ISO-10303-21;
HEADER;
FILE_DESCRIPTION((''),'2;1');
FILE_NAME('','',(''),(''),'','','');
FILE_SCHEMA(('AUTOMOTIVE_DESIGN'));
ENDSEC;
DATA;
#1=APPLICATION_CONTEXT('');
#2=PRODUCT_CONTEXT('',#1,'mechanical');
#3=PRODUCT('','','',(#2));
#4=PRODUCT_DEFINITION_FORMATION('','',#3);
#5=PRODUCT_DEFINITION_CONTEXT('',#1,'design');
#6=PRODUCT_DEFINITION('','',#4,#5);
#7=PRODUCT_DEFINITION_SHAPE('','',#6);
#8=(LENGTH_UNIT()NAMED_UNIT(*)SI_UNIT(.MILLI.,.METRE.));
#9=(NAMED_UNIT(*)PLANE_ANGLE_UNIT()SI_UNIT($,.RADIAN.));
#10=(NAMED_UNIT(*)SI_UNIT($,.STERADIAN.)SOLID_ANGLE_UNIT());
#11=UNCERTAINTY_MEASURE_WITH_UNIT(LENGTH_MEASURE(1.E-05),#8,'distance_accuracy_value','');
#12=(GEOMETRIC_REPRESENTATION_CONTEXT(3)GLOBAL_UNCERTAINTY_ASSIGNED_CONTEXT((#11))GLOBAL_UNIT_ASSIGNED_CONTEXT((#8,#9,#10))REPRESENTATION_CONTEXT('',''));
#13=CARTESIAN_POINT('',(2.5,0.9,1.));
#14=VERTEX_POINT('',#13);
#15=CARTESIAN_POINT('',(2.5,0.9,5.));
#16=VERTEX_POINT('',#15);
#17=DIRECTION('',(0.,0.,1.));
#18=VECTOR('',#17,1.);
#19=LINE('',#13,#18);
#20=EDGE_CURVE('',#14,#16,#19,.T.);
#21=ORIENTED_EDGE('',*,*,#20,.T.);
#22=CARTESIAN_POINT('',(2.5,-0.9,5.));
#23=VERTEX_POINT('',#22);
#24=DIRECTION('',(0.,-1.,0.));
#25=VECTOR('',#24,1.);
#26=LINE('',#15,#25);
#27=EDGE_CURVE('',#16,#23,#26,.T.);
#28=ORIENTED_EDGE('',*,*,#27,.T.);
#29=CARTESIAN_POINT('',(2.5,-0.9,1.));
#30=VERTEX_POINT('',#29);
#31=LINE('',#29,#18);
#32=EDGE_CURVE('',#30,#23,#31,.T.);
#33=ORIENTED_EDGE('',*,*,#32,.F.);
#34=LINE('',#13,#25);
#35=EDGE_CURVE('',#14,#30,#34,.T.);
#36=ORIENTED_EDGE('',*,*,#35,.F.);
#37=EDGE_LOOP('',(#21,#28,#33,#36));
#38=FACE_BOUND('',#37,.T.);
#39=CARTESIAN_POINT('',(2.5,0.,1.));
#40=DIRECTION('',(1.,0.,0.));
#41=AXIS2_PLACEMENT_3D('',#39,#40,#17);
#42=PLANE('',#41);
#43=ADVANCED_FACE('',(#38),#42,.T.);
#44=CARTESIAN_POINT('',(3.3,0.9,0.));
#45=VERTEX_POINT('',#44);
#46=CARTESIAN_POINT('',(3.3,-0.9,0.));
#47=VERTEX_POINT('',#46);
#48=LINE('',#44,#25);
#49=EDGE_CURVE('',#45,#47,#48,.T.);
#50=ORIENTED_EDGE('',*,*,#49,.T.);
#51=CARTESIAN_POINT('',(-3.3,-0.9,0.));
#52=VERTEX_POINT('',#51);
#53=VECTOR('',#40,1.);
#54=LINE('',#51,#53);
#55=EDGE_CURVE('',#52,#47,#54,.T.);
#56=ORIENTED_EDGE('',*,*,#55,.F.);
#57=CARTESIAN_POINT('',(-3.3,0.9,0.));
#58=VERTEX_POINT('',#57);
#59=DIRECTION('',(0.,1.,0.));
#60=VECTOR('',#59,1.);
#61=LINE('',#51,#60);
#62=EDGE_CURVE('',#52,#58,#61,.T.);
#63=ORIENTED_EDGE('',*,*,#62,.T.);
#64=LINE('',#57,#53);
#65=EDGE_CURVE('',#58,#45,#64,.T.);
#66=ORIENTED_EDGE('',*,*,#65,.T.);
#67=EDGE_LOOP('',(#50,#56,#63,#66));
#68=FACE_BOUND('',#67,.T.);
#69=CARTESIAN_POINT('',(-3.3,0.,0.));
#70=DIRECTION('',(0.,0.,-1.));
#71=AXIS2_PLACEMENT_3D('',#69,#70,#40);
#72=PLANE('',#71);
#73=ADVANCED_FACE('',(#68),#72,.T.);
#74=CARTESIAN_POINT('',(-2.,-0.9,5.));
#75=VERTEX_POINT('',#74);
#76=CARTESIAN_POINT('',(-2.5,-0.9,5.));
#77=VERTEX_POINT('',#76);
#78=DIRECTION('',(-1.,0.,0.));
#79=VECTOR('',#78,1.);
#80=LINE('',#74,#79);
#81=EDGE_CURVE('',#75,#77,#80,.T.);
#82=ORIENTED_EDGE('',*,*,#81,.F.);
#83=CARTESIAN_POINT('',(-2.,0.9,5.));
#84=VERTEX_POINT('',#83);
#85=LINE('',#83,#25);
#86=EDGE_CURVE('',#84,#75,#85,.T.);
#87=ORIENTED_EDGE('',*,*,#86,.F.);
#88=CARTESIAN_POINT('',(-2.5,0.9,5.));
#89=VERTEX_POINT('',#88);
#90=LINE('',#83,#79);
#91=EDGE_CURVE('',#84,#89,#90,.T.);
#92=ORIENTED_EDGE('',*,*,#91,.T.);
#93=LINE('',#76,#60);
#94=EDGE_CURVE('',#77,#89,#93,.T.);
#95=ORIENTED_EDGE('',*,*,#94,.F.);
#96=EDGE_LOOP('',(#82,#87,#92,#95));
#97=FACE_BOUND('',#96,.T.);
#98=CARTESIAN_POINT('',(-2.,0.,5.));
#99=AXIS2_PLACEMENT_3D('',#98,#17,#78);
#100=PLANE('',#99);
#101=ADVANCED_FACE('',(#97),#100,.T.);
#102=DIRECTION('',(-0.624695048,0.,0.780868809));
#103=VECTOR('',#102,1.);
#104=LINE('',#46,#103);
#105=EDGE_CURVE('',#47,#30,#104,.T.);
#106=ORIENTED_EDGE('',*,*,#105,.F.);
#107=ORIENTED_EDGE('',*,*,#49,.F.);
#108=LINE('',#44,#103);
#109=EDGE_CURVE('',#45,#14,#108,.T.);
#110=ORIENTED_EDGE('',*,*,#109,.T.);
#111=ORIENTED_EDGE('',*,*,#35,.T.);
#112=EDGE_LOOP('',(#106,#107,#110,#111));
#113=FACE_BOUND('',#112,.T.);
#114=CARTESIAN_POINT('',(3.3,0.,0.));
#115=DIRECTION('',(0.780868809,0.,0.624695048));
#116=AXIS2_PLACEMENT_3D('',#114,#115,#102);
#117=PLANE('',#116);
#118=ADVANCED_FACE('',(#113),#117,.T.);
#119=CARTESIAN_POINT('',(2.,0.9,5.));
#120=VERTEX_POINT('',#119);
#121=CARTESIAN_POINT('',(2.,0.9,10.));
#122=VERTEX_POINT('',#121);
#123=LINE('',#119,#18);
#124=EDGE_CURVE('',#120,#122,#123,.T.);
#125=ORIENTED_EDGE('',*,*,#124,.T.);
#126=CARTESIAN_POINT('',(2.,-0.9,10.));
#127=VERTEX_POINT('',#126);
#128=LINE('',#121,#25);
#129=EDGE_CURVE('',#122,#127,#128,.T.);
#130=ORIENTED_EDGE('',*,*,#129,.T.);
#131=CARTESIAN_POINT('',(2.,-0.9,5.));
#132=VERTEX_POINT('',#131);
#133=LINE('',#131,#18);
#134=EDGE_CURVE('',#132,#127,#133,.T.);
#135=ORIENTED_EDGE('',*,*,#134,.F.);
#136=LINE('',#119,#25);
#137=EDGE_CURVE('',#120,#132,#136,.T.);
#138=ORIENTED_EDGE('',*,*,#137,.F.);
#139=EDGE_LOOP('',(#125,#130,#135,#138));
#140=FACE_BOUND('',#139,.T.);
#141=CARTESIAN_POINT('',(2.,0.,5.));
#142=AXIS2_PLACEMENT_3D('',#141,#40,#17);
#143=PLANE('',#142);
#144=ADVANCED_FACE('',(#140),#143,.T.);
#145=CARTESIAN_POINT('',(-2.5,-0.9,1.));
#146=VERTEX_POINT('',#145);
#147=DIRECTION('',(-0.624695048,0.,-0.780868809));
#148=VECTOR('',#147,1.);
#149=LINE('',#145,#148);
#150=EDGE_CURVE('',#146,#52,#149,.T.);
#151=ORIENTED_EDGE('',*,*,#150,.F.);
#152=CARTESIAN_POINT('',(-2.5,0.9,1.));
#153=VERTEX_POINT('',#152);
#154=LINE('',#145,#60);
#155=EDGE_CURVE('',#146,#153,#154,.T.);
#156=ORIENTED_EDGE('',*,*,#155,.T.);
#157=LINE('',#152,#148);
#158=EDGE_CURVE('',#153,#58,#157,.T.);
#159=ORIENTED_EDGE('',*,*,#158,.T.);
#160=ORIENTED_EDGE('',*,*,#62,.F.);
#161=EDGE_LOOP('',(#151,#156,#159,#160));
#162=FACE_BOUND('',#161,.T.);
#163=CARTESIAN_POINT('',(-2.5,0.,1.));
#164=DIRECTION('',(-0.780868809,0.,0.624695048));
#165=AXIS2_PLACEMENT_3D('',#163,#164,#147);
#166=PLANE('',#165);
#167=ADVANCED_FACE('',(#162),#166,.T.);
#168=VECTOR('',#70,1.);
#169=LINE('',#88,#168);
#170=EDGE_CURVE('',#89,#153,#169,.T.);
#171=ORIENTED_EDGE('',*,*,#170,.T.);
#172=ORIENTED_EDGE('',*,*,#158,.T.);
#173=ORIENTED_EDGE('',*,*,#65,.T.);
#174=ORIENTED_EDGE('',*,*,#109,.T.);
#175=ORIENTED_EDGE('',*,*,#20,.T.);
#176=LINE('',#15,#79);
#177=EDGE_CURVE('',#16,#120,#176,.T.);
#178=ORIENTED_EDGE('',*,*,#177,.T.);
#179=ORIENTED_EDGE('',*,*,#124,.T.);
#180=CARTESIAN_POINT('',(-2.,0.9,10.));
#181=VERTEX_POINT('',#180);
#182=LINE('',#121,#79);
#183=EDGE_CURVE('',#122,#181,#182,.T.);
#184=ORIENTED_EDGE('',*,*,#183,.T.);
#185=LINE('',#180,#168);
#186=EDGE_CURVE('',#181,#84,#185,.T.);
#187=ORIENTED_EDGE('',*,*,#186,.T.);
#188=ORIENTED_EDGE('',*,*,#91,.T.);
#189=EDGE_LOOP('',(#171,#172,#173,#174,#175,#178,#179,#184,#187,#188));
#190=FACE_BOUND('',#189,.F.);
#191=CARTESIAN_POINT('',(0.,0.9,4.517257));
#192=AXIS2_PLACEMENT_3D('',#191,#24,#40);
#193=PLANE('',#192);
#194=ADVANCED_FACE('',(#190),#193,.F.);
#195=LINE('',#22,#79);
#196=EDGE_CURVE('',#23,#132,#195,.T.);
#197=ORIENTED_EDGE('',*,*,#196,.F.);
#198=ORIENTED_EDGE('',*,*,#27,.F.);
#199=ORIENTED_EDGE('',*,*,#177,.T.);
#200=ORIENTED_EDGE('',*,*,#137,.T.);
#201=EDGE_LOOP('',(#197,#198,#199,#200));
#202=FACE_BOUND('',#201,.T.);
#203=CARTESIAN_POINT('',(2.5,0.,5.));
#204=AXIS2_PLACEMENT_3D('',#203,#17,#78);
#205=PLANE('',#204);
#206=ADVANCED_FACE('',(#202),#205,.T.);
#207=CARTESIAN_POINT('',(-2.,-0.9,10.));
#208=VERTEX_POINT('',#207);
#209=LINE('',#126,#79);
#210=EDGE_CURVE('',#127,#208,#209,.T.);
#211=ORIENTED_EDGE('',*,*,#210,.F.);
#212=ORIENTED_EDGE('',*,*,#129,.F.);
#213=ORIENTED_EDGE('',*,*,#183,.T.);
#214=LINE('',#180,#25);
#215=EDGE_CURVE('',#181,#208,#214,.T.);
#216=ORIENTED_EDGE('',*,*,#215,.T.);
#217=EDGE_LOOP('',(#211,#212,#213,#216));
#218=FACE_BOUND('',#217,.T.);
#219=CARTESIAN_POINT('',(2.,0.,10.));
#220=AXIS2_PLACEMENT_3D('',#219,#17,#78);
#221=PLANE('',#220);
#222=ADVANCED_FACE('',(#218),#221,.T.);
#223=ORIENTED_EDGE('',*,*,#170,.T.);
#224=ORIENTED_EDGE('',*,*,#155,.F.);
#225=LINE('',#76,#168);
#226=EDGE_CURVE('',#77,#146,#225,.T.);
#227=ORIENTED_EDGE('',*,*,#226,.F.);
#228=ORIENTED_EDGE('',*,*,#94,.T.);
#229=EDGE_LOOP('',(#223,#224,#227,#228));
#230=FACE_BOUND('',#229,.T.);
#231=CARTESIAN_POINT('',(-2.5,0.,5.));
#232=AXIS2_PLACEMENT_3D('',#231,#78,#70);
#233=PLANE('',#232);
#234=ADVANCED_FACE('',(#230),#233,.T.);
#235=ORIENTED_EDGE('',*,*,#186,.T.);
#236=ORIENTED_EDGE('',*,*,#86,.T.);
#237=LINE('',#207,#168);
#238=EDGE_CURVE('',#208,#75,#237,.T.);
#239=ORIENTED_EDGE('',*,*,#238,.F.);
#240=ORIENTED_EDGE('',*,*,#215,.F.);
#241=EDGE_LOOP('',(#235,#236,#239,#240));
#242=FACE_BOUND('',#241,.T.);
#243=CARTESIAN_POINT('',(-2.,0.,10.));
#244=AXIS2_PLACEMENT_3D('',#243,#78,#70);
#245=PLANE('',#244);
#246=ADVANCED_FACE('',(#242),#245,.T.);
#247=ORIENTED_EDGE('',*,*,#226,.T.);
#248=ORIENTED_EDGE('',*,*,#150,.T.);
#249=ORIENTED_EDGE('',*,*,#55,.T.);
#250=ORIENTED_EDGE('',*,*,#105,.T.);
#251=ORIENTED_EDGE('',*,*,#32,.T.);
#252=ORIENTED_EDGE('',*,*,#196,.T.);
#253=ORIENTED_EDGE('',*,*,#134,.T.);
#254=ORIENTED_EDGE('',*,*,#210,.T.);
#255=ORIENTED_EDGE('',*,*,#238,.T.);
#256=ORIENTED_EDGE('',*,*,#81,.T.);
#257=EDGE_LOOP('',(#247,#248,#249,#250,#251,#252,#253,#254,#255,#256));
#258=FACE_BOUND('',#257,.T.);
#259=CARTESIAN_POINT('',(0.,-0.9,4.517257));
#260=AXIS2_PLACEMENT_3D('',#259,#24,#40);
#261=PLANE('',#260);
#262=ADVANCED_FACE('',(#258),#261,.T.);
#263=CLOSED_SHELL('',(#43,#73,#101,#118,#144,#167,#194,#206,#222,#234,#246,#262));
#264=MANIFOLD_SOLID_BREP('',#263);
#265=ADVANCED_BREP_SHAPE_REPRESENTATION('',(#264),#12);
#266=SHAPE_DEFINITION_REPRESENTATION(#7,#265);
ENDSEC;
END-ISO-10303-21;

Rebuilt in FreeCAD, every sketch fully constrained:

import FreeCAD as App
import Part
import Sketcher
Q = App.Units.Quantity

doc = App.newDocument("Part")
params = doc.addObject("Spreadsheet::Sheet", "Params")
for row, (alias, value) in enumerate([
    ("sketch1_width", "4 mm"),
    ("sketch1_height", "5 mm"),
    ("sketch1_width2", "6.6 mm"),
    ("sketch1_width3", "0.5 mm"),
    ("pad1_length", "1.8 mm"),
], start=1):
    params.set(f"A{row}", alias)
    params.set(f"B{row}", "=" + value)
    params.setAlias(f"B{row}", alias)

body = doc.addObject("PartDesign::Body", "Body")

sketch1 = doc.addObject("Sketcher::SketchObject", "Sketch")
body.addObject(sketch1)
sketch1.AttachmentSupport = (doc.XZ_Plane, [""])
sketch1.MapMode = "FlatFace"
sketch1.addGeometry([
    Part.LineSegment(App.Vector(-3.3, 0, 0), App.Vector(3.3, 0, 0)),
    Part.LineSegment(App.Vector(3.3, 0, 0), App.Vector(2.5, 1, 0)),
    Part.LineSegment(App.Vector(2.5, 1, 0), App.Vector(2.5, 5, 0)),
    Part.LineSegment(App.Vector(2.5, 5, 0), App.Vector(2, 5, 0)),
    Part.LineSegment(App.Vector(2, 5, 0), App.Vector(2, 10, 0)),
    Part.LineSegment(App.Vector(2, 10, 0), App.Vector(-2, 10, 0)),
    Part.LineSegment(App.Vector(-2, 10, 0), App.Vector(-2, 5, 0)),
    Part.LineSegment(App.Vector(-2, 5, 0), App.Vector(-2.5, 5, 0)),
    Part.LineSegment(App.Vector(-2.5, 5, 0), App.Vector(-2.5, 1, 0)),
    Part.LineSegment(App.Vector(-2.5, 1, 0), App.Vector(-3.3, 0, 0)),
], False)
sketch1.addConstraint([
    Sketcher.Constraint("Coincident", 0, 2, 1, 1),
    Sketcher.Constraint("Coincident", 1, 2, 2, 1),
    Sketcher.Constraint("Coincident", 2, 2, 3, 1),
    Sketcher.Constraint("Coincident", 3, 2, 4, 1),
    Sketcher.Constraint("Coincident", 4, 2, 5, 1),
    Sketcher.Constraint("Coincident", 5, 2, 6, 1),
    Sketcher.Constraint("Coincident", 6, 2, 7, 1),
    Sketcher.Constraint("Coincident", 7, 2, 8, 1),
    Sketcher.Constraint("Coincident", 8, 2, 9, 1),
    Sketcher.Constraint("Coincident", 9, 2, 0, 1),
    Sketcher.Constraint("Horizontal", 0),
    Sketcher.Constraint("Vertical", 2),
    Sketcher.Constraint("Horizontal", 3),
    Sketcher.Constraint("Vertical", 4),
    Sketcher.Constraint("Horizontal", 5),
    Sketcher.Constraint("Vertical", 6),
    Sketcher.Constraint("Horizontal", 7),
    Sketcher.Constraint("Vertical", 8),
    Sketcher.Constraint("Symmetric", 0, 2, 9, 2, -1, 1),
    Sketcher.Constraint("Symmetric", 3, 2, 6, 2, -2),
    Sketcher.Constraint("Symmetric", 1, 2, 8, 2, -2),
    Sketcher.Constraint("Equal", 5, 2),
    Sketcher.Constraint("DistanceX", 5, 2, 5, 1, Q("4 mm")),
    Sketcher.Constraint("DistanceY", 4, 1, 4, 2, Q("5 mm")),
    Sketcher.Constraint("DistanceX", 0, 1, 0, 2, Q("6.6 mm")),
    Sketcher.Constraint("DistanceX", 3, 2, 3, 1, Q("0.5 mm")),
    Sketcher.Constraint("DistanceY", -1, 1, 1, 2, Q("1 mm")),
])
sketch1.setExpression("Constraints[22]", "Params.sketch1_width")
sketch1.setExpression("Constraints[23]", "Params.sketch1_height")
sketch1.setExpression("Constraints[24]", "Params.sketch1_width2")
sketch1.setExpression("Constraints[25]", "Params.sketch1_width3")
pad1 = doc.addObject("PartDesign::Pad", "Pad")
body.addObject(pad1)
pad1.Profile = sketch1
pad1.setExpression("Length", "Params.pad1_length")
pad1.Midplane = True

doc.recompute()
